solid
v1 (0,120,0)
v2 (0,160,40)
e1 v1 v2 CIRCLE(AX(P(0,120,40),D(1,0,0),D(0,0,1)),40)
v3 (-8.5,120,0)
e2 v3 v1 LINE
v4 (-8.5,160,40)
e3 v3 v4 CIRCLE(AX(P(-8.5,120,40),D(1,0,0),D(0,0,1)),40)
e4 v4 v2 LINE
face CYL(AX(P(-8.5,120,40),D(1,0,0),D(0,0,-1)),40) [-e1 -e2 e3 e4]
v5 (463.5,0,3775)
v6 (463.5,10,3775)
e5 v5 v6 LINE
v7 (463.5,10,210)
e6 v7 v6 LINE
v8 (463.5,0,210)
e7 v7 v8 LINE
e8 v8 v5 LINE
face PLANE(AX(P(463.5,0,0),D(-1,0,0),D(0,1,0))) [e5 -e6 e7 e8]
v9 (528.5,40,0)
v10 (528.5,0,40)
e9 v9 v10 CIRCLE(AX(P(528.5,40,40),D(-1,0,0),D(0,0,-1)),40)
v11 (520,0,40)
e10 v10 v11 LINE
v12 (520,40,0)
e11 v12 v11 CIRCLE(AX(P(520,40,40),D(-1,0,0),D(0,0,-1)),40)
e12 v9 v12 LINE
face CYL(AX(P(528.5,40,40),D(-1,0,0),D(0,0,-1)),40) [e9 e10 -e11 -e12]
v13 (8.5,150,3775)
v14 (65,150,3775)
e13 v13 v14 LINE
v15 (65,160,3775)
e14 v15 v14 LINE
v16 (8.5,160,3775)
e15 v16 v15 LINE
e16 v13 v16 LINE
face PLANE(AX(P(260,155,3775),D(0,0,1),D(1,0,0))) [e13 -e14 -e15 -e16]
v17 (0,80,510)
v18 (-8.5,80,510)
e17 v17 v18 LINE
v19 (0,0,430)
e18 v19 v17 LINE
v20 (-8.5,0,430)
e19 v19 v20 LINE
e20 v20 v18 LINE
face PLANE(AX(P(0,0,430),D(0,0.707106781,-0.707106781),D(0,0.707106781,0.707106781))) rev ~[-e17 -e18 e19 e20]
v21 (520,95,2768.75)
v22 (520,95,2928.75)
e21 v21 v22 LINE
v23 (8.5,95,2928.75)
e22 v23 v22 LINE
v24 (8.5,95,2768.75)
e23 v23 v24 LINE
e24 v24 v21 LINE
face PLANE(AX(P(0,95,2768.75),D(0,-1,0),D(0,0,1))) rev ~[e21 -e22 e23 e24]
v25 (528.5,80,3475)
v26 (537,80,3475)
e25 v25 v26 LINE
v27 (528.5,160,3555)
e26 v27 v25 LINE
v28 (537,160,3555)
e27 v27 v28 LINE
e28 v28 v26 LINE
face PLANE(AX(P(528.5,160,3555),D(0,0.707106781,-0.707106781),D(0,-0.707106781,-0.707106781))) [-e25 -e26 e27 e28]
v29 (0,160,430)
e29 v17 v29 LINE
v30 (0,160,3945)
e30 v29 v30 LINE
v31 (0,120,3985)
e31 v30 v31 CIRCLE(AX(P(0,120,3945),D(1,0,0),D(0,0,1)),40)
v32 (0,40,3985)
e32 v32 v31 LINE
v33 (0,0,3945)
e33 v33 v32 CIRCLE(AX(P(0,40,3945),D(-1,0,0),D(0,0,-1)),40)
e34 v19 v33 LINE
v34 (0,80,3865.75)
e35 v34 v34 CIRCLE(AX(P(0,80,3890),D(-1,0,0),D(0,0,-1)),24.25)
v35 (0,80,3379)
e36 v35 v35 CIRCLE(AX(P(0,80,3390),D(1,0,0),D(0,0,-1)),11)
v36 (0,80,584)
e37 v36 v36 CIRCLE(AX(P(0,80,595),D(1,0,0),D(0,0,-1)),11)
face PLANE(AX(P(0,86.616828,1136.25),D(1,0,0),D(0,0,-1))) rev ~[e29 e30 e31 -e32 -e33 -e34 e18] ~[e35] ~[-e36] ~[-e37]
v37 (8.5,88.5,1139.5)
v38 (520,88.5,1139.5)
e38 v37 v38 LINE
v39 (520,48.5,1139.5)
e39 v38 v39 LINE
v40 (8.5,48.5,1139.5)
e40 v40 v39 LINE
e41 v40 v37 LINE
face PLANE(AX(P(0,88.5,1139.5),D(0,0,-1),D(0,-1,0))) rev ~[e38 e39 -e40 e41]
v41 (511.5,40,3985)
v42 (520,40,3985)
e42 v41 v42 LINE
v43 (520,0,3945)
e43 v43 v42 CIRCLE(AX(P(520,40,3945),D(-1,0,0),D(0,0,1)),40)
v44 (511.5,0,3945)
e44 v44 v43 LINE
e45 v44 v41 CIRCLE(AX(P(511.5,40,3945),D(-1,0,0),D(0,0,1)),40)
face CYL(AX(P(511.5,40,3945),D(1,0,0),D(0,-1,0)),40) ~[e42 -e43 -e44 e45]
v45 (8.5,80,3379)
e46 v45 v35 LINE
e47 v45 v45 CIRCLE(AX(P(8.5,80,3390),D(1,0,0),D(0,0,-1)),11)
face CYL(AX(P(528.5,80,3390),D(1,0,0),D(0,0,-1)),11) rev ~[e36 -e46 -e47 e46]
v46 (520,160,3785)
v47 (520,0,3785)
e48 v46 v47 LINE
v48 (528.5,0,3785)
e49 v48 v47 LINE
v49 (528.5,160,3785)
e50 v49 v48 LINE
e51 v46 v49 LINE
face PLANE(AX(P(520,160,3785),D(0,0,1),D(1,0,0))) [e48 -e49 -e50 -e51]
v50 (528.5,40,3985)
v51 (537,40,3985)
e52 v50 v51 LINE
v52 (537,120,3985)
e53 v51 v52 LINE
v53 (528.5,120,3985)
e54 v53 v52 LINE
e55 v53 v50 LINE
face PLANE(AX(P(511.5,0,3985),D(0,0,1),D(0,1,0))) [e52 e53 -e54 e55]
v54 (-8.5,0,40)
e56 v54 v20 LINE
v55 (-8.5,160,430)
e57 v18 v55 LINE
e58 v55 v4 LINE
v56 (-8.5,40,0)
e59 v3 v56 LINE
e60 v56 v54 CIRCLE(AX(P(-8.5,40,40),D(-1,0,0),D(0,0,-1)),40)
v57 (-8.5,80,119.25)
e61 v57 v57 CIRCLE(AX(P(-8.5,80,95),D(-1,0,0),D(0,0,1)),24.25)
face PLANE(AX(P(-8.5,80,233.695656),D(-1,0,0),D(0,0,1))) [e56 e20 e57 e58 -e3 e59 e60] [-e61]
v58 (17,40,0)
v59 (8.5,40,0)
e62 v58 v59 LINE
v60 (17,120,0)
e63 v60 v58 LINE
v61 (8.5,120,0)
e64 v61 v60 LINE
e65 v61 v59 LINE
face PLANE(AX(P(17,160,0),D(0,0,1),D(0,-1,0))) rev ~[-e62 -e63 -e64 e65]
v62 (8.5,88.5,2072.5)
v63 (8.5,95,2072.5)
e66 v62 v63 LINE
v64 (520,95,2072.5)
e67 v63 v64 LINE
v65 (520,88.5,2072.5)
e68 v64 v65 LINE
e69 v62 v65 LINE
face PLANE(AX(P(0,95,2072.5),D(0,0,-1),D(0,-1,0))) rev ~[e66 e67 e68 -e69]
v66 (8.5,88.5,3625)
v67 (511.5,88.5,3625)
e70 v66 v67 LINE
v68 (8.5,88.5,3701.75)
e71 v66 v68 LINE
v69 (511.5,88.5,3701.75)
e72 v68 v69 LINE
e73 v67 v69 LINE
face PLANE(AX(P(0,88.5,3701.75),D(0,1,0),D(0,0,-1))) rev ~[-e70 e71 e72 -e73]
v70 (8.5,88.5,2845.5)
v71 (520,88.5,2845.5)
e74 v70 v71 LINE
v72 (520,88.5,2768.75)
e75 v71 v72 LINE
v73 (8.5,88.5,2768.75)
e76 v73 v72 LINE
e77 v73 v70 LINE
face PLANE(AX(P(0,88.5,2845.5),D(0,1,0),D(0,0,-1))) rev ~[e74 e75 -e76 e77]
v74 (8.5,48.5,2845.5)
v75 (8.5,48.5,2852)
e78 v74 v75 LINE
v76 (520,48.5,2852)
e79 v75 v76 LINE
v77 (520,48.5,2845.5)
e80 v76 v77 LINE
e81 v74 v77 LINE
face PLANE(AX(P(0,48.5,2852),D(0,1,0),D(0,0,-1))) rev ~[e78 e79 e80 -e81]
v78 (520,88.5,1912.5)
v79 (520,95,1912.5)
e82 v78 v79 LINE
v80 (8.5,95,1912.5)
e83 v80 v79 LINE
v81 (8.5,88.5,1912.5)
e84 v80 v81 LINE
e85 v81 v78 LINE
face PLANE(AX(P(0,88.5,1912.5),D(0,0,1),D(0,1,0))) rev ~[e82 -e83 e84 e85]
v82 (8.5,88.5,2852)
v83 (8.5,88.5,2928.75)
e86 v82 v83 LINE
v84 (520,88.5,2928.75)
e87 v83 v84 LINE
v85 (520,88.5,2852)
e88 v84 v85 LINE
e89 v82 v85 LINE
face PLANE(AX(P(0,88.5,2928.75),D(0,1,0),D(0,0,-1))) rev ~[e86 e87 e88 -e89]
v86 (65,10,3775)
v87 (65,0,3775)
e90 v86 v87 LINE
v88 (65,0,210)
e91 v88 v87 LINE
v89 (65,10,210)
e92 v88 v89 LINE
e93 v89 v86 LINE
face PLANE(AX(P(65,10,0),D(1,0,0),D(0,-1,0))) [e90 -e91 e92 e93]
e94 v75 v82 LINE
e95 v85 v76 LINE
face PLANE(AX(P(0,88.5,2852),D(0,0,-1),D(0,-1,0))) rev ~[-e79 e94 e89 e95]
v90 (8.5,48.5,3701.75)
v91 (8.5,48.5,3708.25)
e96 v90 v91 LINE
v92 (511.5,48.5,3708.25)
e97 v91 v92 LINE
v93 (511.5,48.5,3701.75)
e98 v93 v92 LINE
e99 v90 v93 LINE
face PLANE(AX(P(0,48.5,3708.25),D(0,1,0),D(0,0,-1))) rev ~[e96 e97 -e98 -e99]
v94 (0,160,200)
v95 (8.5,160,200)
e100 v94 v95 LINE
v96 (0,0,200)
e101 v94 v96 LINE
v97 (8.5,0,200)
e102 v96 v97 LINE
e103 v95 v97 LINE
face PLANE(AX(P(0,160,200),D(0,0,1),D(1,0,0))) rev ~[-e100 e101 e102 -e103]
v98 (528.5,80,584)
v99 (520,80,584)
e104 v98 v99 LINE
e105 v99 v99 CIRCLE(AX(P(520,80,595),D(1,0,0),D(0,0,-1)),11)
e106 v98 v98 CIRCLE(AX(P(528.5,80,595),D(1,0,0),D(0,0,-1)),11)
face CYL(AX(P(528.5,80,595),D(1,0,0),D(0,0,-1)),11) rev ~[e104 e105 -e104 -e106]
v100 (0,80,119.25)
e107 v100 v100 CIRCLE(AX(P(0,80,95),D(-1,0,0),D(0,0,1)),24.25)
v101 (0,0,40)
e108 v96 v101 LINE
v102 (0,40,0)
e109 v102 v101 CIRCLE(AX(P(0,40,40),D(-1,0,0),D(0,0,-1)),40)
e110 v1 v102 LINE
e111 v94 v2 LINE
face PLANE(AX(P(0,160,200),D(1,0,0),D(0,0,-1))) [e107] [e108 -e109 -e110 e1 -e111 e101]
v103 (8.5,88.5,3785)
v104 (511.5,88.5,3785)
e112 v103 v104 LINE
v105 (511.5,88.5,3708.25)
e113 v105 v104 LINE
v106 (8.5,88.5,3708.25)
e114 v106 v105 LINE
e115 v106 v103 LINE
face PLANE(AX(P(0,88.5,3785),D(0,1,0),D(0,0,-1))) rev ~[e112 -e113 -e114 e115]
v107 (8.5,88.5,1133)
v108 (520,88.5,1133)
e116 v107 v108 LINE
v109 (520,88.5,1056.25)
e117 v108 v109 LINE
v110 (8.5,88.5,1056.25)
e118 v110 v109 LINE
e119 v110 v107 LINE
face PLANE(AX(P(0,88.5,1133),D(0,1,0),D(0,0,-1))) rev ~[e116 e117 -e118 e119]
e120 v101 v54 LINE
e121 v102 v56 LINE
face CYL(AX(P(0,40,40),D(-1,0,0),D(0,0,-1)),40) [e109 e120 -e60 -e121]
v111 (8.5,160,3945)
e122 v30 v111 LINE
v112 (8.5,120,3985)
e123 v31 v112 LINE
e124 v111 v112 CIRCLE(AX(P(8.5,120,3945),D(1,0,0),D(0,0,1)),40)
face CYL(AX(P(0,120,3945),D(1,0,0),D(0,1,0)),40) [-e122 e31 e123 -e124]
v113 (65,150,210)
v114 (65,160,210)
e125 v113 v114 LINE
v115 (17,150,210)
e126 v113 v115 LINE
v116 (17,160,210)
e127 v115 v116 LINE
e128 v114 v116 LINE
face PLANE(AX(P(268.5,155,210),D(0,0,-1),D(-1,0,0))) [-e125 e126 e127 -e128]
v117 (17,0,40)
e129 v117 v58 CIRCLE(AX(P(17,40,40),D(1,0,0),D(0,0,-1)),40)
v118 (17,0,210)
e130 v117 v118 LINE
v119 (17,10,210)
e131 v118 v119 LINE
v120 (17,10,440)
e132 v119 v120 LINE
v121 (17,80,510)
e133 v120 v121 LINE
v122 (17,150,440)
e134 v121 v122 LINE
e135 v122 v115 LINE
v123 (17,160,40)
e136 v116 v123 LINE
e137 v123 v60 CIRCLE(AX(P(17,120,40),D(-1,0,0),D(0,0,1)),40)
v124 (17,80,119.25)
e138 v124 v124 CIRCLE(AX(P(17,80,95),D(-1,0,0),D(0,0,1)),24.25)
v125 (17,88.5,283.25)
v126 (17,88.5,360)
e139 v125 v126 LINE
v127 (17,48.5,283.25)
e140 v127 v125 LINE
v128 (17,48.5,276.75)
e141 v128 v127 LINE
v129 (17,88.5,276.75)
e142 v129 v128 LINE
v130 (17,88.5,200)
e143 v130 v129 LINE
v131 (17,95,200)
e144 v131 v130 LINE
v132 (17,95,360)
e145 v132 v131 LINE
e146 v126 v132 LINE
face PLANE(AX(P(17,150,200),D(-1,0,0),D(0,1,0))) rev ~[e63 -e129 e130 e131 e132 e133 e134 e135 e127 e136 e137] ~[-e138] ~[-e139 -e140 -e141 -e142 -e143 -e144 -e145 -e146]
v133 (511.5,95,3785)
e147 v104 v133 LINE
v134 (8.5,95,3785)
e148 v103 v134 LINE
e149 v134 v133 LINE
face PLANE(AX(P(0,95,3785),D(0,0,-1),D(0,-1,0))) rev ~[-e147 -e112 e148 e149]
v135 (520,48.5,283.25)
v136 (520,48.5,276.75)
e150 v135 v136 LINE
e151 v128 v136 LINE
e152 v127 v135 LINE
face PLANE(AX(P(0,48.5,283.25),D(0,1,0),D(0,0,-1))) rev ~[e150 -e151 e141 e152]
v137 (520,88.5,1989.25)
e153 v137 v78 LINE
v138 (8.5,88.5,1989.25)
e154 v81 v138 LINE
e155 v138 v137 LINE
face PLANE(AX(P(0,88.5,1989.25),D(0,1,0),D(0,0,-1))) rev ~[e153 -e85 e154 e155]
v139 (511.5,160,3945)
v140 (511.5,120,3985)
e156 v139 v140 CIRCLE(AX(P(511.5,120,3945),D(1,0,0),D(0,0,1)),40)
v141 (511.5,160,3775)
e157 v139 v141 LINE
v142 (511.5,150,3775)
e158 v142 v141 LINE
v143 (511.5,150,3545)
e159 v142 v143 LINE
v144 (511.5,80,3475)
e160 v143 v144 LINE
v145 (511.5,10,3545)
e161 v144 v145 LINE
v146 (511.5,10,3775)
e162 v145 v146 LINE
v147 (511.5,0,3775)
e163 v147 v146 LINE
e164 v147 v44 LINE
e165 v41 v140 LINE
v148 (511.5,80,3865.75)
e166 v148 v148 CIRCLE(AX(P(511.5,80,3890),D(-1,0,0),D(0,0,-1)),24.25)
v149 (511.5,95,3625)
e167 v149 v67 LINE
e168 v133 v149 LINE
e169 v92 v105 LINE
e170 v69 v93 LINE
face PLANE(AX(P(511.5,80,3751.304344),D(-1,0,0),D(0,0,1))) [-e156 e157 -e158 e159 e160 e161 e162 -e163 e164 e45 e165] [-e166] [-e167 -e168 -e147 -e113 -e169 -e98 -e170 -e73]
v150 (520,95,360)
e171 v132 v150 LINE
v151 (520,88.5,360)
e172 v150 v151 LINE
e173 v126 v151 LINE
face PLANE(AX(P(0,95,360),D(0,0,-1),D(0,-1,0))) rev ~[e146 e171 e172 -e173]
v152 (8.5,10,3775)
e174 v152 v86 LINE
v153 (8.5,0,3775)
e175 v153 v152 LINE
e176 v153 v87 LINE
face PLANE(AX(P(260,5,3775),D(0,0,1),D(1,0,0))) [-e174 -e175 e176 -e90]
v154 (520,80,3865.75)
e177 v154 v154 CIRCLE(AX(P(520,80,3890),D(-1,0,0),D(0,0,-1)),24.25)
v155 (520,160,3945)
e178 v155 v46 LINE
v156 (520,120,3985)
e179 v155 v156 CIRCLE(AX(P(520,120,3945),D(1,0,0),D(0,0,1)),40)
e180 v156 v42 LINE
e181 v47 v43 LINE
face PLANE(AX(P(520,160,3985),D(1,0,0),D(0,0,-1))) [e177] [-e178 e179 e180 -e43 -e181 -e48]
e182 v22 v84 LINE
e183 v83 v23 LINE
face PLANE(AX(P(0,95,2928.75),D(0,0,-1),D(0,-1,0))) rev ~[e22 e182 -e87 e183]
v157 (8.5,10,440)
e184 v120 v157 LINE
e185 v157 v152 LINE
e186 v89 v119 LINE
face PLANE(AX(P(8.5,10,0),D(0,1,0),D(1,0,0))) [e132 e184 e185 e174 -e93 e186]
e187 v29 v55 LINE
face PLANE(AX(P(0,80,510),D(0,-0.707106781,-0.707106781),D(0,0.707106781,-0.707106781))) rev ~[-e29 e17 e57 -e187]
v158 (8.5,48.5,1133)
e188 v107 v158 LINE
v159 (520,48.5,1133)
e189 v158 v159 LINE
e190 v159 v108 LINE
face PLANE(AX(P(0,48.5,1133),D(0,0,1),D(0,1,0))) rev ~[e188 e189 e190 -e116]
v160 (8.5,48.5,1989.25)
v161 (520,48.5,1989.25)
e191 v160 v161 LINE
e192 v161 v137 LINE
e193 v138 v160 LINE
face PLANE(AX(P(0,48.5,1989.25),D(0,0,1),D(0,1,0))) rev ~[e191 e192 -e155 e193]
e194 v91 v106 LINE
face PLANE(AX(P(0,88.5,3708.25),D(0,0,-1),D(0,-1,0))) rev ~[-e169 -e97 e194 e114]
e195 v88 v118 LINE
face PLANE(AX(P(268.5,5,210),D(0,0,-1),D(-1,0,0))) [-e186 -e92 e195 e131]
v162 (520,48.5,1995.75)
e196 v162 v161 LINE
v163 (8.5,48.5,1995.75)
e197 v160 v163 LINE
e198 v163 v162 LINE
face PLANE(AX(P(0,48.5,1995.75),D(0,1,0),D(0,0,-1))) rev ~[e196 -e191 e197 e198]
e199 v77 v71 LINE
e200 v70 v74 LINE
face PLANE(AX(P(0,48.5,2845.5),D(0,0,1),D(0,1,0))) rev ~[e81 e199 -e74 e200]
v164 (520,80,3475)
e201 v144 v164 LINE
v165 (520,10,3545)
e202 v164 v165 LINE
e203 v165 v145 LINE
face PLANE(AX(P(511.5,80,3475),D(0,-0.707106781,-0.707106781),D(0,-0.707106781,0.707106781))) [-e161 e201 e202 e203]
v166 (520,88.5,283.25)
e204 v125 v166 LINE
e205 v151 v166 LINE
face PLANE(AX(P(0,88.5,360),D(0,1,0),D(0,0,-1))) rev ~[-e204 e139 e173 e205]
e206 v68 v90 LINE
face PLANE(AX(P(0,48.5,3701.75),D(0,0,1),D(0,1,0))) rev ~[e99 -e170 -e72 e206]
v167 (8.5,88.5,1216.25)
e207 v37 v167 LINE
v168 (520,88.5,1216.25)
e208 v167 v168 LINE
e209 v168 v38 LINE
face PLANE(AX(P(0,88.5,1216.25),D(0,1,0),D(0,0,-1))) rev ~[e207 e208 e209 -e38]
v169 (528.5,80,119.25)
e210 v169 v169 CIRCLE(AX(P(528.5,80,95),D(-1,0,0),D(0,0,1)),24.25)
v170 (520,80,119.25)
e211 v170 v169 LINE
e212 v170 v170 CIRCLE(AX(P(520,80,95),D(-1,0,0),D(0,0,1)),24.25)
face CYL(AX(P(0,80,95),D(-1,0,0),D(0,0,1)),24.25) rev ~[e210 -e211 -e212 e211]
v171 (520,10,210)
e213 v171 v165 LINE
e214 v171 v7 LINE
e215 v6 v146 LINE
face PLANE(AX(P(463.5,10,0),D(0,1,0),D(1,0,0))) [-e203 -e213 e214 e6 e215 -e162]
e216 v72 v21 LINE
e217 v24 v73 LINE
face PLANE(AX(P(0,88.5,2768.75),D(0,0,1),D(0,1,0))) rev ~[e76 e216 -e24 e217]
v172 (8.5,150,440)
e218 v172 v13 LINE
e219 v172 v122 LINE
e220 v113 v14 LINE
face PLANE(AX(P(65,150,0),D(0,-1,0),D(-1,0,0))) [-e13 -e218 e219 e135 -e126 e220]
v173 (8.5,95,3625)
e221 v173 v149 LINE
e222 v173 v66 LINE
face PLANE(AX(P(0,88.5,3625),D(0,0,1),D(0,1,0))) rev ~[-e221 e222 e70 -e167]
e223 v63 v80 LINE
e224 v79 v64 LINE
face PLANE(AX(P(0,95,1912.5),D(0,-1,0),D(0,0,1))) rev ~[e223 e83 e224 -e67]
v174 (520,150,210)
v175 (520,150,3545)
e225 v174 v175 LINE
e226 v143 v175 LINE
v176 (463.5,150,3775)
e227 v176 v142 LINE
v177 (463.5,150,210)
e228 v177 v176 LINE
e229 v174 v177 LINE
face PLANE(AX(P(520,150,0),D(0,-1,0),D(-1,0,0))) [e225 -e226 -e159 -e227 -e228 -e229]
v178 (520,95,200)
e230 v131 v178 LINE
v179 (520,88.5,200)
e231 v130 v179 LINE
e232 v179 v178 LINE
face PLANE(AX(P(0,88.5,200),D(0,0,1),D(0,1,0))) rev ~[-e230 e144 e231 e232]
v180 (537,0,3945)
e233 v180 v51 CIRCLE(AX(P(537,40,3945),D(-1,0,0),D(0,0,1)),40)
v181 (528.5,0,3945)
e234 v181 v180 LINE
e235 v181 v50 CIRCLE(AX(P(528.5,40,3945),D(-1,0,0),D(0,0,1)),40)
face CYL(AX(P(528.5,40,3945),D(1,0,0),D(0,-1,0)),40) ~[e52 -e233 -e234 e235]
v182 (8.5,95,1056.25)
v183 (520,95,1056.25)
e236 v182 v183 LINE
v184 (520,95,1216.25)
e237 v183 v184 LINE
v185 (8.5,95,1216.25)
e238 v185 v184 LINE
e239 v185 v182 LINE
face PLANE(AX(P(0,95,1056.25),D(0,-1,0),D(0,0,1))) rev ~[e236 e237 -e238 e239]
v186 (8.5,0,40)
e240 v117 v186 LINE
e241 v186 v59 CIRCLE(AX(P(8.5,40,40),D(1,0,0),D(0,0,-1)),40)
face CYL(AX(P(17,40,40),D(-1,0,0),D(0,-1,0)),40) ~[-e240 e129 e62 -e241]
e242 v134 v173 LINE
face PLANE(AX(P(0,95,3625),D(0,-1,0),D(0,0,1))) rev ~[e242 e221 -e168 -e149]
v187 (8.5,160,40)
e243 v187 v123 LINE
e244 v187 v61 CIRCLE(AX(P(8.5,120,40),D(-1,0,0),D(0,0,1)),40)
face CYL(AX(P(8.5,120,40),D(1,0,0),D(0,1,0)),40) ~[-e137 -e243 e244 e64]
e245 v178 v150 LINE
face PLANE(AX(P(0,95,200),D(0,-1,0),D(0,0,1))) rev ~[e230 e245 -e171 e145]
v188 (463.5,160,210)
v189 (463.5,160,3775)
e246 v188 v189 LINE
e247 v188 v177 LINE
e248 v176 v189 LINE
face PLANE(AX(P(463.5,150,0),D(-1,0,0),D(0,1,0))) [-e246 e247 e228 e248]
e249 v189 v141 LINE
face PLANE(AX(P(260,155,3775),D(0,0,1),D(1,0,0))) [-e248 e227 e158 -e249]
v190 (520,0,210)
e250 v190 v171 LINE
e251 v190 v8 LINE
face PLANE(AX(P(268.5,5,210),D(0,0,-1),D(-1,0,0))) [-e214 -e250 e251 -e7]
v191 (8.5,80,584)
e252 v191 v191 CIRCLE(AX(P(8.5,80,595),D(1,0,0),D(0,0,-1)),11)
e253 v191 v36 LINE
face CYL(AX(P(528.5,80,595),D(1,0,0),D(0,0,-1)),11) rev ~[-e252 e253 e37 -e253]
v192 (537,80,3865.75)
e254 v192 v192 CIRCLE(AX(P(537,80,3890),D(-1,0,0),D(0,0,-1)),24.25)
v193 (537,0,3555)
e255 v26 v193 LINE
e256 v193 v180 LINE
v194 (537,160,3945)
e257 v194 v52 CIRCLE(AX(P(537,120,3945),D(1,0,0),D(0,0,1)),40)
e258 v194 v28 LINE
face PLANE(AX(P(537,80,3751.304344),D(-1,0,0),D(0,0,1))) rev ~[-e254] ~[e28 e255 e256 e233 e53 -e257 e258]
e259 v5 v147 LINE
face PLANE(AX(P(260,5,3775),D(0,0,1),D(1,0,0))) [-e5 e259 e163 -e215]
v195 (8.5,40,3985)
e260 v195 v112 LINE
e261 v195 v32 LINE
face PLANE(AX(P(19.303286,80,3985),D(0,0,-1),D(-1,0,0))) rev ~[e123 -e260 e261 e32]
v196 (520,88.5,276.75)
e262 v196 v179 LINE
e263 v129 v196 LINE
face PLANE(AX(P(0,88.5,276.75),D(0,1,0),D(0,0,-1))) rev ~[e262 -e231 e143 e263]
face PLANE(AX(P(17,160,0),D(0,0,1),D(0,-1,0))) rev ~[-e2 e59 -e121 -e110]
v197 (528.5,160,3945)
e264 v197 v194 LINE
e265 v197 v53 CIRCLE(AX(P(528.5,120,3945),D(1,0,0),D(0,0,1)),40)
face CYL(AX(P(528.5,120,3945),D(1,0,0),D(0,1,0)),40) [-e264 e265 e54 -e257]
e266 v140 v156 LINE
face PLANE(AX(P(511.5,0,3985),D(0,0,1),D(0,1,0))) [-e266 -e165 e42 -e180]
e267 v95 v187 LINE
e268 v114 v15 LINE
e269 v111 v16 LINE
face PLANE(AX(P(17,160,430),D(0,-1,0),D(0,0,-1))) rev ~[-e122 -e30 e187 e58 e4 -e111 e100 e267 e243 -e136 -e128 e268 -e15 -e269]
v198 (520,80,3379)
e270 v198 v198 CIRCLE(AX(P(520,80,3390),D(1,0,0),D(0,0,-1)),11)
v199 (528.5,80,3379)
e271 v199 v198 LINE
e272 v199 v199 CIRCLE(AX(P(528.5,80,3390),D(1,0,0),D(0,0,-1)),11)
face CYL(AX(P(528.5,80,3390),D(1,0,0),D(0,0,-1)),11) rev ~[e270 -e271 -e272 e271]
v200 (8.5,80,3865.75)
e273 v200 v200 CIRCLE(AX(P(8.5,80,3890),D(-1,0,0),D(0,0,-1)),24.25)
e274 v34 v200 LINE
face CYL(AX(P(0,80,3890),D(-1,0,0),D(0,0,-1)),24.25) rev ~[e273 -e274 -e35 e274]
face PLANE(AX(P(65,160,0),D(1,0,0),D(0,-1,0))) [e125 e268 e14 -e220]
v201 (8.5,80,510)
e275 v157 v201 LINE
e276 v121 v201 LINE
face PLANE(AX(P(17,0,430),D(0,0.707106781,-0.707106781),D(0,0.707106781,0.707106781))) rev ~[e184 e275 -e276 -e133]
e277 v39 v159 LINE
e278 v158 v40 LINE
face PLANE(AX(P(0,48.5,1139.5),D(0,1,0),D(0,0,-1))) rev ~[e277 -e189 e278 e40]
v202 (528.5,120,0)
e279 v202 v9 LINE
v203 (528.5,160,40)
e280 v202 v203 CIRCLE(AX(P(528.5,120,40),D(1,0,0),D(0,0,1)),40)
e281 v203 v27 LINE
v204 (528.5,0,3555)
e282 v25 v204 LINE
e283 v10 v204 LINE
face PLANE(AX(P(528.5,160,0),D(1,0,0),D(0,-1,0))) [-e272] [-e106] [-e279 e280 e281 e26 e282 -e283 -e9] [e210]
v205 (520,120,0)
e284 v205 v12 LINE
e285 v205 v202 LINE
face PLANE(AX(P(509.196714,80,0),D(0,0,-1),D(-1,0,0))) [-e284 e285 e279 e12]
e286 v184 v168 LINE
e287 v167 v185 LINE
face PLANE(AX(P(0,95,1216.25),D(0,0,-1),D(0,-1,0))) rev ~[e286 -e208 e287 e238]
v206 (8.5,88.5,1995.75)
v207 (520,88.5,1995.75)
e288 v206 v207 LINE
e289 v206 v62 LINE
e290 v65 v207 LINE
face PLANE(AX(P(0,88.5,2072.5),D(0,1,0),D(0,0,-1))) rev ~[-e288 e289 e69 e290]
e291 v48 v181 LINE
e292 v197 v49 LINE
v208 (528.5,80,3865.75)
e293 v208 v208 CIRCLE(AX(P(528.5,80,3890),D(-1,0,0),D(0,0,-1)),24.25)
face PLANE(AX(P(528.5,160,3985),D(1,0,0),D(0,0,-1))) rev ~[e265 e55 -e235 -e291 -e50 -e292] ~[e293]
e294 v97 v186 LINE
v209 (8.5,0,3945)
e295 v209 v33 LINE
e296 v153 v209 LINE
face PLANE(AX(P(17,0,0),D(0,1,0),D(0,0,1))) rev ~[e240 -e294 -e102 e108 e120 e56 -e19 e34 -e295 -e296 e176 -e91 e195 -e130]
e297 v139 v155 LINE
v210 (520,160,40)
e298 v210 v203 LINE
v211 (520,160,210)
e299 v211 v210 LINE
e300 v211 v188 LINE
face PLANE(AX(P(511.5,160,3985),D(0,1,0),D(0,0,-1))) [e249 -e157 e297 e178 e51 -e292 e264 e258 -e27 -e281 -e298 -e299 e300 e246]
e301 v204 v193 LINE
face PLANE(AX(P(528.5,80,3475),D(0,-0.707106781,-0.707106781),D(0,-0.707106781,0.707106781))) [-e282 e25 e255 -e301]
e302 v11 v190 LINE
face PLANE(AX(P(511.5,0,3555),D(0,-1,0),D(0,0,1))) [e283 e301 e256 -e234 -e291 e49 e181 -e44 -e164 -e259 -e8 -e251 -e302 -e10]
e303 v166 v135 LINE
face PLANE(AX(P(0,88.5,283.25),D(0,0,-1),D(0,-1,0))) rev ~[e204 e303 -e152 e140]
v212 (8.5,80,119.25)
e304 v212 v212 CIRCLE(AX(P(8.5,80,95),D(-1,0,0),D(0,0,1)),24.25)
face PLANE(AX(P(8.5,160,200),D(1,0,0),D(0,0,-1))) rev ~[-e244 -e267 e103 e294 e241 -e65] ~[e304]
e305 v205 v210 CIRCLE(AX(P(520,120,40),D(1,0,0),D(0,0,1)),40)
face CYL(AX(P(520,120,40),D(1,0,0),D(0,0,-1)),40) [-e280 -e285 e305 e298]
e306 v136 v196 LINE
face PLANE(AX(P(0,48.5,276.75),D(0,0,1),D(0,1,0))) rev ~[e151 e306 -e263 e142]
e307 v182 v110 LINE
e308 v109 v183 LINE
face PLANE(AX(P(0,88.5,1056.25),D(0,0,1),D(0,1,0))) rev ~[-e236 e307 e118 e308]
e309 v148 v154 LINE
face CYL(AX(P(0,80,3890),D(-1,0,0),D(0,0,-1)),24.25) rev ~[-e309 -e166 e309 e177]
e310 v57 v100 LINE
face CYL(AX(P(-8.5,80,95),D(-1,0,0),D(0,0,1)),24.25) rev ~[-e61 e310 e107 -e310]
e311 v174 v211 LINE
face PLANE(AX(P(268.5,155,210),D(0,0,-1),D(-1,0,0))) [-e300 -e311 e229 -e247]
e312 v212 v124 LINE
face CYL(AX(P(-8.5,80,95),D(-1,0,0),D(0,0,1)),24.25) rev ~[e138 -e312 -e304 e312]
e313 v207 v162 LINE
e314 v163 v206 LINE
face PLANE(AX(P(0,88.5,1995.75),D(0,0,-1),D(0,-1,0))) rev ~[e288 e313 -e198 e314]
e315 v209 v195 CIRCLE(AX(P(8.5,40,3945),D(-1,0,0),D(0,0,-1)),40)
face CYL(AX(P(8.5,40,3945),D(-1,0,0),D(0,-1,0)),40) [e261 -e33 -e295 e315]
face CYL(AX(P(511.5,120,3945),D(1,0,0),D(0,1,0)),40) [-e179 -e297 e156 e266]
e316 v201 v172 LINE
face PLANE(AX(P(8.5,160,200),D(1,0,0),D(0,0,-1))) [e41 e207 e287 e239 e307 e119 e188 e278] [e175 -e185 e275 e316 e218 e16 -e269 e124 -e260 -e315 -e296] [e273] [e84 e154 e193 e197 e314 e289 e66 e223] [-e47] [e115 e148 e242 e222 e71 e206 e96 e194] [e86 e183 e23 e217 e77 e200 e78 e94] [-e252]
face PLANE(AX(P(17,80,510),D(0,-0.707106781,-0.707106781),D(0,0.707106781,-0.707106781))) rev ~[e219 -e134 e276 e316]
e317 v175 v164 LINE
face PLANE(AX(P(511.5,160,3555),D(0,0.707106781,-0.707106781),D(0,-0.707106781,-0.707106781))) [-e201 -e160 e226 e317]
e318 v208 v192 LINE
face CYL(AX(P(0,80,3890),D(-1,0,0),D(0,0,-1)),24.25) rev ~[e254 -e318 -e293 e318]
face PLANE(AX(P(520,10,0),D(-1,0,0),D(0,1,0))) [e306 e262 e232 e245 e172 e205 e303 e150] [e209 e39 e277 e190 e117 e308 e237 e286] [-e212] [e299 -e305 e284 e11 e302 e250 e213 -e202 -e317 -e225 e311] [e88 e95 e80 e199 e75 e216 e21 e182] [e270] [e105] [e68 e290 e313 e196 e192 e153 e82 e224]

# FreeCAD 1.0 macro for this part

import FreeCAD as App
import Part
import Sketcher
from FreeCAD import Vector


def edges_at(feature, points):
    """Names of the edges that pass closest to the given points."""
    edges = feature.Shape.Edges
    near = lambda p: min(range(len(edges)), key=lambda i: edges[i].distToShape(Part.Vertex(*p))[0])
    return sorted({f"Edge{near(p) + 1}" for p in points})

doc = App.newDocument("Part")
params = doc.addObject("Spreadsheet::Sheet", "Params")
for row, (alias, value) in enumerate([
    ("sketch1_width", "65 mm"),
    ("sketch1_height", "160 mm"),
    ("sketch1_height2", "10 mm"),
    ("sketch1_width2", "56.5 mm"),
    ("pad1_length", "3985 mm"),
    ("sketch2_width", "65 mm"),
    ("sketch2_height", "10 mm"),
    ("sketch2_height2", "140 mm"),
    ("sketch2_width2", "56.5 mm"),
    ("pad2_length", "3985 mm"),
    ("sketch3_width", "40 mm"),
    ("sketch3_height", "160 mm"),
    ("sketch3_width2", "6.5 mm"),
    ("pad3_length", "520 mm"),
    ("sketch4_height", "200 mm"),
    ("sketch4_width", "511.5 mm"),
    ("linearpattern_pitch", "856.25 mm"),
    ("sketch5_width", "160 mm"),
    ("sketch5_height", "430 mm"),
    ("pad4_length", "8.5 mm"),
    ("linearpattern2_pitch", "17 mm"),
    ("sketch6_height", "200 mm"),
    ("sketch6_width", "8.5 mm"),
    ("sketch7_diameter", "48.5 mm"),
    ("sketch8_width", "160 mm"),
    ("sketch8_height", "430 mm"),
    ("pad5_length", "8.5 mm"),
    ("linearpattern3_pitch", "17 mm"),
    ("sketch9_height", "200 mm"),
    ("sketch9_width", "8.5 mm"),
    ("sketch10_diameter", "48.5 mm"),
    ("fillet_radius", "40 mm"),
    ("sketch11_width", "503 mm"),
    ("sketch11_height", "10 mm"),
    ("pocket6_length", "10 mm"),
    ("sketch12_width", "503 mm"),
    ("sketch12_height", "10 mm"),
    ("pocket7_length", "10 mm"),
    ("sketch13_diameter", "22 mm"),
], start=1):
    params.set(f"A{row}", alias)
    params.set(f"B{row}", "=" + value)
    params.setAlias(f"B{row}", alias)

body = doc.addObject("PartDesign::Body", "Body")

# Sketch on XY plane
sketch1 = body.newObject("Sketcher::SketchObject", "Sketch")
sketch1.AttachmentSupport = (doc.getObject("XY_Plane"), [""])
sketch1.MapMode = "FlatFace"
sketch1.addGeometry([
    Part.LineSegment(Vector(0, 160, 0), Vector(0, 0, 0)),  # 0
    Part.LineSegment(Vector(0, 0, 0), Vector(65, 0, 0)),  # 1
    Part.LineSegment(Vector(65, 0, 0), Vector(65, 10, 0)),  # 2
    Part.LineSegment(Vector(65, 10, 0), Vector(8, 10, 0)),  # 3
    Part.LineSegment(Vector(8, 10, 0), Vector(8, 150, 0)),  # 4
    Part.LineSegment(Vector(8, 150, 0), Vector(65, 150, 0)),  # 5
    Part.LineSegment(Vector(65, 150, 0), Vector(65, 160, 0)),  # 6
    Part.LineSegment(Vector(65, 160, 0), Vector(0, 160, 0)),  # 7
], False)
sketch1.addConstraint([
    Sketcher.Constraint("Coincident", 0, 2, 1, 1),
    Sketcher.Constraint("Coincident", 1, 2, 2, 1),
    Sketcher.Constraint("Coincident", 2, 2, 3, 1),
    Sketcher.Constraint("Coincident", 3, 2, 4, 1),
    Sketcher.Constraint("Coincident", 4, 2, 5, 1),
    Sketcher.Constraint("Coincident", 5, 2, 6, 1),
    Sketcher.Constraint("Coincident", 6, 2, 7, 1),
    Sketcher.Constraint("Coincident", 7, 2, 0, 1),
    Sketcher.Constraint("Vertical", 0),
    Sketcher.Constraint("Horizontal", 1),
    Sketcher.Constraint("Vertical", 2),
    Sketcher.Constraint("Horizontal", 3),
    Sketcher.Constraint("Vertical", 4),
    Sketcher.Constraint("Horizontal", 5),
    Sketcher.Constraint("Vertical", 6),
    Sketcher.Constraint("Horizontal", 7),
    Sketcher.Constraint("Coincident", 0, 2, -1, 1),
    Sketcher.Constraint("Vertical", 2, 2, 5, 2),
    Sketcher.Constraint("Equal", 2, 6),
    Sketcher.Constraint("DistanceX", 1, 1, 1, 2, 65.0),
    Sketcher.Constraint("DistanceY", 0, 2, 0, 1, 160.0),
    Sketcher.Constraint("DistanceY", 2, 1, 2, 2, 10.0),
    Sketcher.Constraint("DistanceX", 3, 2, 3, 1, 56.5),
])
sketch1.setExpression("Constraints[19]", "Params.sketch1_width")
sketch1.setExpression("Constraints[20]", "Params.sketch1_height")
sketch1.setExpression("Constraints[21]", "Params.sketch1_height2")
sketch1.setExpression("Constraints[22]", "Params.sketch1_width2")
pad1 = body.newObject("PartDesign::Pad", "Pad")
pad1.Profile = sketch1
pad1.setExpression("Length", "Params.pad1_length")
body2 = doc.addObject("PartDesign::Body", "Body001")

# Sketch on XY plane
sketch2 = body2.newObject("Sketcher::SketchObject", "Sketch001")
sketch2.AttachmentSupport = (doc.getObject("XY_Plane001"), [""])
sketch2.MapMode = "FlatFace"
sketch2.addGeometry([
    Part.LineSegment(Vector(528, 160, 0), Vector(464, 160, 0)),  # 0
    Part.LineSegment(Vector(464, 160, 0), Vector(464, 150, 0)),  # 1
    Part.LineSegment(Vector(464, 150, 0), Vector(520, 150, 0)),  # 2
    Part.LineSegment(Vector(520, 150, 0), Vector(520, 10, 0)),  # 3
    Part.LineSegment(Vector(520, 10, 0), Vector(464, 10, 0)),  # 4
    Part.LineSegment(Vector(464, 10, 0), Vector(464, 0, 0)),  # 5
    Part.LineSegment(Vector(464, 0, 0), Vector(528, 0, 0)),  # 6
    Part.LineSegment(Vector(528, 0, 0), Vector(528, 160, 0)),  # 7
], False)
sketch2.addConstraint([
    Sketcher.Constraint("Coincident", 0, 2, 1, 1),
    Sketcher.Constraint("Coincident", 1, 2, 2, 1),
    Sketcher.Constraint("Coincident", 2, 2, 3, 1),
    Sketcher.Constraint("Coincident", 3, 2, 4, 1),
    Sketcher.Constraint("Coincident", 4, 2, 5, 1),
    Sketcher.Constraint("Coincident", 5, 2, 6, 1),
    Sketcher.Constraint("Coincident", 6, 2, 7, 1),
    Sketcher.Constraint("Coincident", 7, 2, 0, 1),
    Sketcher.Constraint("Horizontal", 0),
    Sketcher.Constraint("Vertical", 1),
    Sketcher.Constraint("Horizontal", 2),
    Sketcher.Constraint("Vertical", 3),
    Sketcher.Constraint("Horizontal", 4),
    Sketcher.Constraint("Vertical", 5),
    Sketcher.Constraint("Horizontal", 6),
    Sketcher.Constraint("Vertical", 7),
    Sketcher.Constraint("PointOnObject", 5, 2, -1),
    Sketcher.Constraint("Vertical", 1, 2, 4, 2),
    Sketcher.Constraint("Equal", 1, 5),
    Sketcher.Constraint("DistanceX", 0, 2, 0, 1, 65.0),
    Sketcher.Constraint("DistanceY", 1, 2, 1, 1, 10.0),
    Sketcher.Constraint("DistanceY", 3, 2, 3, 1, 140.0),
    Sketcher.Constraint("DistanceX", 2, 1, 2, 2, 56.5),
    Sketcher.Constraint("DistanceX", -1, 1, 2, 2, 520.0),
])
sketch2.setExpression("Constraints[19]", "Params.sketch2_width")
sketch2.setExpression("Constraints[20]", "Params.sketch2_height")
sketch2.setExpression("Constraints[21]", "Params.sketch2_height2")
sketch2.setExpression("Constraints[22]", "Params.sketch2_width2")
pad2 = body2.newObject("PartDesign::Pad", "Pad001")
pad2.Profile = sketch2
pad2.setExpression("Length", "Params.pad2_length")
body.AllowCompound = True
doc.recompute()

boolean = body.newObject("PartDesign::Boolean", "Boolean")
boolean.Type = "Fuse"
boolean.addObjects([body2])

# Sketch on YZ plane
sketch3 = body.newObject("Sketcher::SketchObject", "Sketch002")
sketch3.AttachmentSupport = (doc.getObject("YZ_Plane"), [""])
sketch3.MapMode = "FlatFace"
sketch3.addGeometry([
    Part.LineSegment(Vector(95, 360, 0), Vector(95, 200, 0)),  # 0
    Part.LineSegment(Vector(95, 200, 0), Vector(88, 200, 0)),  # 1
    Part.LineSegment(Vector(88, 200, 0), Vector(88, 277, 0)),  # 2
    Part.LineSegment(Vector(88, 277, 0), Vector(48, 277, 0)),  # 3
    Part.LineSegment(Vector(48, 277, 0), Vector(48, 283, 0)),  # 4
    Part.LineSegment(Vector(48, 283, 0), Vector(88, 283, 0)),  # 5
    Part.LineSegment(Vector(88, 283, 0), Vector(88, 360, 0)),  # 6
    Part.LineSegment(Vector(88, 360, 0), Vector(95, 360, 0)),  # 7
], False)
sketch3.addConstraint([
    Sketcher.Constraint("Coincident", 0, 2, 1, 1),
    Sketcher.Constraint("Coincident", 1, 2, 2, 1),
    Sketcher.Constraint("Coincident", 2, 2, 3, 1),
    Sketcher.Constraint("Coincident", 3, 2, 4, 1),
    Sketcher.Constraint("Coincident", 4, 2, 5, 1),
    Sketcher.Constraint("Coincident", 5, 2, 6, 1),
    Sketcher.Constraint("Coincident", 6, 2, 7, 1),
    Sketcher.Constraint("Coincident", 7, 2, 0, 1),
    Sketcher.Constraint("Vertical", 0),
    Sketcher.Constraint("Horizontal", 1),
    Sketcher.Constraint("Vertical", 2),
    Sketcher.Constraint("Horizontal", 3),
    Sketcher.Constraint("Vertical", 4),
    Sketcher.Constraint("Horizontal", 5),
    Sketcher.Constraint("Vertical", 6),
    Sketcher.Constraint("Horizontal", 7),
    Sketcher.Constraint("Vertical", 2, 2, 5, 2),
    Sketcher.Constraint("Equal", 7, 4),
    Sketcher.Constraint("Equal", 2, 6),
    Sketcher.Constraint("DistanceX", 3, 2, 3, 1, 40.0),
    Sketcher.Constraint("DistanceY", 0, 2, 0, 1, 160.0),
    Sketcher.Constraint("DistanceX", 1, 2, 1, 1, 6.5),
    Sketcher.Constraint("DistanceX", -1, 1, 0, 2, 95.0),
    Sketcher.Constraint("DistanceY", -1, 1, 0, 2, 200.0),
])
sketch3.setExpression("Constraints[19]", "Params.sketch3_width")
sketch3.setExpression("Constraints[20]", "Params.sketch3_height")
sketch3.setExpression("Constraints[21]", "Params.sketch3_width2")
pad3 = body.newObject("PartDesign::Pad", "Pad002")
pad3.Profile = sketch3
pad3.setExpression("Length", "Params.pad3_length")

# Sketch on XZ plane
sketch4 = body.newObject("Sketcher::SketchObject", "Sketch003")
sketch4.AttachmentSupport = (doc.getObject("XZ_Plane"), [""])
sketch4.MapMode = "FlatFace"
sketch4.AttachmentOffset = App.Placement(Vector(0, 0, -160), App.Rotation())
sketch4.addGeometry([
    Part.LineSegment(Vector(8, 0, 0), Vector(8, 200, 0)),  # 0
    Part.LineSegment(Vector(8, 200, 0), Vector(520, 200, 0)),  # 1
    Part.LineSegment(Vector(520, 200, 0), Vector(520, 0, 0)),  # 2
    Part.LineSegment(Vector(520, 0, 0), Vector(8, 0, 0)),  # 3
    Part.LineSegment(Vector(8, 3785, 0), Vector(8, 3985, 0)),  # 4
    Part.LineSegment(Vector(8, 3985, 0), Vector(520, 3985, 0)),  # 5
    Part.LineSegment(Vector(520, 3985, 0), Vector(520, 3785, 0)),  # 6
    Part.LineSegment(Vector(520, 3785, 0), Vector(8, 3785, 0)),  # 7
], False)
sketch4.addConstraint([
    Sketcher.Constraint("Coincident", 0, 2, 1, 1),
    Sketcher.Constraint("Coincident", 1, 2, 2, 1),
    Sketcher.Constraint("Coincident", 2, 2, 3, 1),
    Sketcher.Constraint("Coincident", 3, 2, 0, 1),
    Sketcher.Constraint("Coincident", 4, 2, 5, 1),
    Sketcher.Constraint("Coincident", 5, 2, 6, 1),
    Sketcher.Constraint("Coincident", 6, 2, 7, 1),
    Sketcher.Constraint("Coincident", 7, 2, 4, 1),
    Sketcher.Constraint("Vertical", 0),
    Sketcher.Constraint("Horizontal", 1),
    Sketcher.Constraint("Vertical", 2),
    Sketcher.Constraint("Horizontal", 3),
    Sketcher.Constraint("Vertical", 4),
    Sketcher.Constraint("Horizontal", 5),
    Sketcher.Constraint("Vertical", 6),
    Sketcher.Constraint("Horizontal", 7),
    Sketcher.Constraint("PointOnObject", 2, 2, -1),
    Sketcher.Constraint("Vertical", 3, 2, 4, 2),
    Sketcher.Constraint("Vertical", 2, 2, 5, 2),
    Sketcher.Constraint("Equal", 2, 4),
    Sketcher.Constraint("DistanceY", 0, 1, 0, 2, 200.0),
    Sketcher.Constraint("DistanceX", 1, 1, 1, 2, 511.5),
    Sketcher.Constraint("DistanceX", -1, 1, 1, 2, 520.0),
    Sketcher.Constraint("DistanceY", -1, 1, 4, 2, 3985.0),
])
sketch4.setExpression("Constraints[20]", "Params.sketch4_height")
sketch4.setExpression("Constraints[21]", "Params.sketch4_width")
pocket1 = body.newObject("PartDesign::Pocket", "Pocket")
pocket1.Profile = sketch4
pocket1.Type = "ThroughAll"
pocket1.Reversed = True
doc.recompute()

linearpattern = body.newObject("PartDesign::LinearPattern", "LinearPattern")
linearpattern.Originals = [pad3]
linearpattern.Direction = (doc.getObject("Z_Axis"), [""])
linearpattern.Mode = "offset"
linearpattern.setExpression("Offset", "Params.linearpattern_pitch")
linearpattern.Occurrences = 5
body.Tip = linearpattern

# Sketch on YZ plane
sketch5 = body.newObject("Sketcher::SketchObject", "Sketch004")
sketch5.AttachmentSupport = (doc.getObject("YZ_Plane"), [""])
sketch5.MapMode = "FlatFace"
sketch5.AttachmentOffset = App.Placement(Vector(0, 0, 528.5), App.Rotation())
sketch5.addGeometry([
    Part.LineSegment(Vector(160, 3555, 0), Vector(160, 3985, 0)),  # 0
    Part.LineSegment(Vector(160, 3985, 0), Vector(0, 3985, 0)),  # 1
    Part.LineSegment(Vector(0, 3985, 0), Vector(0, 3555, 0)),  # 2
    Part.LineSegment(Vector(0, 3555, 0), Vector(80, 3475, 0)),  # 3
    Part.LineSegment(Vector(80, 3475, 0), Vector(160, 3555, 0)),  # 4
], False)
sketch5.addConstraint([
    Sketcher.Constraint("Coincident", 0, 2, 1, 1),
    Sketcher.Constraint("Coincident", 1, 2, 2, 1),
    Sketcher.Constraint("Coincident", 2, 2, 3, 1),
    Sketcher.Constraint("Coincident", 3, 2, 4, 1),
    Sketcher.Constraint("Coincident", 4, 2, 0, 1),
    Sketcher.Constraint("Vertical", 0),
    Sketcher.Constraint("Horizontal", 1),
    Sketcher.Constraint("Vertical", 2),
    Sketcher.Constraint("PointOnObject", 1, 2, -2),
    Sketcher.Constraint("Perpendicular", 3, 4),
    Sketcher.Constraint("Horizontal", 2, 2, 4, 2),
    Sketcher.Constraint("Equal", 3, 4),
    Sketcher.Constraint("DistanceX", 1, 2, 1, 1, 160.0),
    Sketcher.Constraint("DistanceY", 0, 1, 0, 2, 430.0),
    Sketcher.Constraint("DistanceY", -1, 1, 0, 2, 3985.0),
])
sketch5.setExpression("Constraints[12]", "Params.sketch5_width")
sketch5.setExpression("Constraints[13]", "Params.sketch5_height")
pad4 = body.newObject("PartDesign::Pad", "Pad003")
pad4.Profile = sketch5
pad4.setExpression("Length", "Params.pad4_length")
doc.recompute()

linearpattern2 = body.newObject("PartDesign::LinearPattern", "LinearPattern001")
linearpattern2.Originals = [pad4]
linearpattern2.Direction = (doc.getObject("X_Axis"), [""])
linearpattern2.Mode = "offset"
linearpattern2.setExpression("Offset", "Params.linearpattern2_pitch")
linearpattern2.Occurrences = 2
linearpattern2.Reversed = True
body.Tip = linearpattern2

# Sketch on XZ plane
sketch6 = body.newObject("Sketcher::SketchObject", "Sketch005")
sketch6.AttachmentSupport = (doc.getObject("XZ_Plane"), [""])
sketch6.MapMode = "FlatFace"
sketch6.AttachmentOffset = App.Placement(Vector(0, 0, -160), App.Rotation())
sketch6.addGeometry([
    Part.LineSegment(Vector(520, 3785, 0), Vector(520, 3985, 0)),
    Part.LineSegment(Vector(520, 3985, 0), Vector(528, 3985, 0)),
    Part.LineSegment(Vector(528, 3985, 0), Vector(528, 3785, 0)),
    Part.LineSegment(Vector(528, 3785, 0), Vector(520, 3785, 0)),
], False)
sketch6.addConstraint([
    Sketcher.Constraint("Coincident", 0, 2, 1, 1),
    Sketcher.Constraint("Coincident", 1, 2, 2, 1),
    Sketcher.Constraint("Coincident", 2, 2, 3, 1),
    Sketcher.Constraint("Coincident", 3, 2, 0, 1),
    Sketcher.Constraint("Vertical", 0),
    Sketcher.Constraint("Horizontal", 1),
    Sketcher.Constraint("Vertical", 2),
    Sketcher.Constraint("Horizontal", 3),
    Sketcher.Constraint("DistanceY", 0, 1, 0, 2, 200.0),
    Sketcher.Constraint("DistanceX", 1, 1, 1, 2, 8.5),
    Sketcher.Constraint("DistanceX", -1, 1, 0, 2, 520.0),
    Sketcher.Constraint("DistanceY", -1, 1, 0, 2, 3985.0),
])
sketch6.setExpression("Constraints[8]", "Params.sketch6_height")
sketch6.setExpression("Constraints[9]", "Params.sketch6_width")
pocket2 = body.newObject("PartDesign::Pocket", "Pocket001")
pocket2.Profile = sketch6
pocket2.Type = "ThroughAll"
pocket2.Reversed = True

# Sketch on YZ plane
sketch7 = body.newObject("Sketcher::SketchObject", "Sketch006")
sketch7.AttachmentSupport = (doc.getObject("YZ_Plane"), [""])
sketch7.MapMode = "FlatFace"
sketch7.addGeometry([
    Part.Circle(Vector(80, 95, 0), Vector(0, 0, 1), 24),
    Part.Circle(Vector(80, 3890, 0), Vector(0, 0, 1), 24),
], False)
sketch7.addConstraint([
    Sketcher.Constraint("Equal", 0, 1),
    Sketcher.Constraint("Vertical", 0, 3, 1, 3),
    Sketcher.Constraint("Diameter", 0, 48.5),
    Sketcher.Constraint("DistanceX", -1, 1, 0, 3, 80.0),
    Sketcher.Constraint("DistanceY", -1, 1, 0, 3, 95.0),
    Sketcher.Constraint("DistanceY", -1, 1, 1, 3, 3890.0),
])
sketch7.setExpression("Constraints[2]", "Params.sketch7_diameter")
pocket3 = body.newObject("PartDesign::Pocket", "Pocket002")
pocket3.Profile = sketch7
pocket3.Type = "ThroughAll"
pocket3.Reversed = True

# Sketch on YZ plane
sketch8 = body.newObject("Sketcher::SketchObject", "Sketch007")
sketch8.AttachmentSupport = (doc.getObject("YZ_Plane"), [""])
sketch8.MapMode = "FlatFace"
sketch8.addGeometry([
    Part.LineSegment(Vector(160, 0, 0), Vector(0, 0, 0)),  # 0
    Part.LineSegment(Vector(0, 0, 0), Vector(0, 430, 0)),  # 1
    Part.LineSegment(Vector(0, 430, 0), Vector(80, 510, 0)),  # 2
    Part.LineSegment(Vector(80, 510, 0), Vector(160, 430, 0)),  # 3
    Part.LineSegment(Vector(160, 430, 0), Vector(160, 0, 0)),  # 4
], False)
sketch8.addConstraint([
    Sketcher.Constraint("Coincident", 0, 2, 1, 1),
    Sketcher.Constraint("Coincident", 1, 2, 2, 1),
    Sketcher.Constraint("Coincident", 2, 2, 3, 1),
    Sketcher.Constraint("Coincident", 3, 2, 4, 1),
    Sketcher.Constraint("Coincident", 4, 2, 0, 1),
    Sketcher.Constraint("Horizontal", 0),
    Sketcher.Constraint("Vertical", 1),
    Sketcher.Constraint("Vertical", 4),
    Sketcher.Constraint("Coincident", 0, 2, -1, 1),
    Sketcher.Constraint("Perpendicular", 2, 3),
    Sketcher.Constraint("Horizontal", 1, 2, 3, 2),
    Sketcher.Constraint("Equal", 2, 3),
    Sketcher.Constraint("DistanceX", 0, 2, 0, 1, 160.0),
    Sketcher.Constraint("DistanceY", 1, 1, 1, 2, 430.0),
])
sketch8.setExpression("Constraints[12]", "Params.sketch8_width")
sketch8.setExpression("Constraints[13]", "Params.sketch8_height")
pad5 = body.newObject("PartDesign::Pad", "Pad004")
pad5.Profile = sketch8
pad5.setExpression("Length", "Params.pad5_length")
pad5.Reversed = True
doc.recompute()

linearpattern3 = body.newObject("PartDesign::LinearPattern", "LinearPattern002")
linearpattern3.Originals = [pad5]
linearpattern3.Direction = (doc.getObject("X_Axis"), [""])
linearpattern3.Mode = "offset"
linearpattern3.setExpression("Offset", "Params.linearpattern3_pitch")
linearpattern3.Occurrences = 2
body.Tip = linearpattern3

# Sketch on XZ plane
sketch9 = body.newObject("Sketcher::SketchObject", "Sketch008")
sketch9.AttachmentSupport = (doc.getObject("XZ_Plane"), [""])
sketch9.MapMode = "FlatFace"
sketch9.AttachmentOffset = App.Placement(Vector(0, 0, -160), App.Rotation())
sketch9.addGeometry([
    Part.LineSegment(Vector(0, 0, 0), Vector(0, 200, 0)),
    Part.LineSegment(Vector(0, 200, 0), Vector(8, 200, 0)),
    Part.LineSegment(Vector(8, 200, 0), Vector(8, 0, 0)),
    Part.LineSegment(Vector(8, 0, 0), Vector(0, 0, 0)),
], False)
sketch9.addConstraint([
    Sketcher.Constraint("Coincident", 0, 2, 1, 1),
    Sketcher.Constraint("Coincident", 1, 2, 2, 1),
    Sketcher.Constraint("Coincident", 2, 2, 3, 1),
    Sketcher.Constraint("Coincident", 3, 2, 0, 1),
    Sketcher.Constraint("Vertical", 0),
    Sketcher.Constraint("Horizontal", 1),
    Sketcher.Constraint("Vertical", 2),
    Sketcher.Constraint("Horizontal", 3),
    Sketcher.Constraint("Coincident", 3, 2, -1, 1),
    Sketcher.Constraint("DistanceY", 0, 1, 0, 2, 200.0),
    Sketcher.Constraint("DistanceX", 1, 1, 1, 2, 8.5),
])
sketch9.setExpression("Constraints[9]", "Params.sketch9_height")
sketch9.setExpression("Constraints[10]", "Params.sketch9_width")
pocket4 = body.newObject("PartDesign::Pocket", "Pocket003")
pocket4.Profile = sketch9
pocket4.Type = "ThroughAll"
pocket4.Reversed = True

# Sketch on YZ plane
sketch10 = body.newObject("Sketcher::SketchObject", "Sketch009")
sketch10.AttachmentSupport = (doc.getObject("YZ_Plane"), [""])
sketch10.MapMode = "FlatFace"
sketch10.AttachmentOffset = App.Placement(Vector(0, 0, -8.5), App.Rotation())
sketch10.addGeometry(Part.Circle(Vector(80, 95, 0), Vector(0, 0, 1), 24), False)
sketch10.addConstraint([
    Sketcher.Constraint("Diameter", 0, 48.5),
    Sketcher.Constraint("DistanceX", -1, 1, 0, 3, 80.0),
    Sketcher.Constraint("DistanceY", -1, 1, 0, 3, 95.0),
])
sketch10.setExpression("Constraints[0]", "Params.sketch10_diameter")
pocket5 = body.newObject("PartDesign::Pocket", "Pocket004")
pocket5.Profile = sketch10
pocket5.Type = "ThroughAll"
pocket5.Reversed = True
doc.recompute()

fillet = body.newObject("PartDesign::Fillet", "Fillet")
fillet.Base = (pocket5, edges_at(pocket5, [
    (-4.25, 0, 0),
    (515.75, 0, 3985),
    (4.25, 160, 3985),
    (515.75, 160, 3985),
    (532.75, 0, 3985),
    (4.25, 0, 3985),
    (-4.25, 160, 0),
    (12.75, 0, 0),
    (524.25, 160, 0),
    (532.75, 160, 3985),
    (524.25, 0, 0),
    (12.75, 160, 0),
]))
fillet.setExpression("Radius", "Params.fillet_radius")

# Sketch on XY plane
sketch11 = body.newObject("Sketcher::SketchObject", "Sketch010")
sketch11.AttachmentSupport = (doc.getObject("XY_Plane"), [""])
sketch11.MapMode = "FlatFace"
sketch11.AttachmentOffset = App.Placement(Vector(0, 0, 3785), App.Rotation())
sketch11.addGeometry([
    Part.LineSegment(Vector(8, 160, 0), Vector(8, 150, 0)),  # 0
    Part.LineSegment(Vector(8, 150, 0), Vector(512, 150, 0)),  # 1
    Part.LineSegment(Vector(512, 150, 0), Vector(512, 160, 0)),  # 2
    Part.LineSegment(Vector(512, 160, 0), Vector(8, 160, 0)),  # 3
    Part.LineSegment(Vector(8, 10, 0), Vector(8, 0, 0)),  # 4
    Part.LineSegment(Vector(8, 0, 0), Vector(512, 0, 0)),  # 5
    Part.LineSegment(Vector(512, 0, 0), Vector(512, 10, 0)),  # 6
    Part.LineSegment(Vector(512, 10, 0), Vector(8, 10, 0)),  # 7
], False)
sketch11.addConstraint([
    Sketcher.Constraint("Coincident", 0, 2, 1, 1),
    Sketcher.Constraint("Coincident", 1, 2, 2, 1),
    Sketcher.Constraint("Coincident", 2, 2, 3, 1),
    Sketcher.Constraint("Coincident", 3, 2, 0, 1),
    Sketcher.Constraint("Coincident", 4, 2, 5, 1),
    Sketcher.Constraint("Coincident", 5, 2, 6, 1),
    Sketcher.Constraint("Coincident", 6, 2, 7, 1),
    Sketcher.Constraint("Coincident", 7, 2, 4, 1),
    Sketcher.Constraint("Vertical", 0),
    Sketcher.Constraint("Horizontal", 1),
    Sketcher.Constraint("Vertical", 2),
    Sketcher.Constraint("Horizontal", 3),
    Sketcher.Constraint("Vertical", 4),
    Sketcher.Constraint("Horizontal", 5),
    Sketcher.Constraint("Vertical", 6),
    Sketcher.Constraint("Horizontal", 7),
    Sketcher.Constraint("PointOnObject", 4, 2, -1),
    Sketcher.Constraint("Vertical", 3, 2, 4, 2),
    Sketcher.Constraint("Vertical", 2, 2, 5, 2),
    Sketcher.Constraint("Equal", 2, 4),
    Sketcher.Constraint("DistanceX", 1, 1, 1, 2, 503.0),
    Sketcher.Constraint("DistanceY", 0, 2, 0, 1, 10.0),
    Sketcher.Constraint("DistanceY", -1, 1, 0, 2, 150.0),
    Sketcher.Constraint("DistanceX", -1, 1, 0, 2, 8.5),
])
sketch11.setExpression("Constraints[20]", "Params.sketch11_width")
sketch11.setExpression("Constraints[21]", "Params.sketch11_height")
pocket6 = body.newObject("PartDesign::Pocket", "Pocket005")
pocket6.Profile = sketch11
pocket6.setExpression("Length", "Params.pocket6_length")

# Sketch on XY plane
sketch12 = body.newObject("Sketcher::SketchObject", "Sketch011")
sketch12.AttachmentSupport = (doc.getObject("XY_Plane"), [""])
sketch12.MapMode = "FlatFace"
sketch12.AttachmentOffset = App.Placement(Vector(0, 0, 200), App.Rotation())
sketch12.addGeometry([
    Part.LineSegment(Vector(520, 160, 0), Vector(520, 150, 0)),  # 0
    Part.LineSegment(Vector(520, 150, 0), Vector(17, 150, 0)),  # 1
    Part.LineSegment(Vector(17, 150, 0), Vector(17, 160, 0)),  # 2
    Part.LineSegment(Vector(17, 160, 0), Vector(520, 160, 0)),  # 3
    Part.LineSegment(Vector(520, 10, 0), Vector(520, 0, 0)),  # 4
    Part.LineSegment(Vector(520, 0, 0), Vector(17, 0, 0)),  # 5
    Part.LineSegment(Vector(17, 0, 0), Vector(17, 10, 0)),  # 6
    Part.LineSegment(Vector(17, 10, 0), Vector(520, 10, 0)),  # 7
], False)
sketch12.addConstraint([
    Sketcher.Constraint("Coincident", 0, 2, 1, 1),
    Sketcher.Constraint("Coincident", 1, 2, 2, 1),
    Sketcher.Constraint("Coincident", 2, 2, 3, 1),
    Sketcher.Constraint("Coincident", 3, 2, 0, 1),
    Sketcher.Constraint("Coincident", 4, 2, 5, 1),
    Sketcher.Constraint("Coincident", 5, 2, 6, 1),
    Sketcher.Constraint("Coincident", 6, 2, 7, 1),
    Sketcher.Constraint("Coincident", 7, 2, 4, 1),
    Sketcher.Constraint("Vertical", 0),
    Sketcher.Constraint("Horizontal", 1),
    Sketcher.Constraint("Vertical", 2),
    Sketcher.Constraint("Horizontal", 3),
    Sketcher.Constraint("Vertical", 4),
    Sketcher.Constraint("Horizontal", 5),
    Sketcher.Constraint("Vertical", 6),
    Sketcher.Constraint("Horizontal", 7),
    Sketcher.Constraint("PointOnObject", 4, 2, -1),
    Sketcher.Constraint("Vertical", 3, 2, 4, 2),
    Sketcher.Constraint("Vertical", 2, 2, 5, 2),
    Sketcher.Constraint("Equal", 2, 4),
    Sketcher.Constraint("DistanceX", 1, 2, 1, 1, 503.0),
    Sketcher.Constraint("DistanceY", 0, 2, 0, 1, 10.0),
    Sketcher.Constraint("DistanceX", -1, 1, 0, 2, 520.0),
    Sketcher.Constraint("DistanceY", -1, 1, 0, 2, 150.0),
])
sketch12.setExpression("Constraints[20]", "Params.sketch12_width")
sketch12.setExpression("Constraints[21]", "Params.sketch12_height")
pocket7 = body.newObject("PartDesign::Pocket", "Pocket006")
pocket7.Profile = sketch12
pocket7.setExpression("Length", "Params.pocket7_length")
pocket7.Reversed = True

# Sketch on YZ plane
sketch13 = body.newObject("Sketcher::SketchObject", "Sketch012")
sketch13.AttachmentSupport = (doc.getObject("YZ_Plane"), [""])
sketch13.MapMode = "FlatFace"
sketch13.AttachmentOffset = App.Placement(Vector(0, 0, 528.5), App.Rotation())
sketch13.addGeometry([
    Part.Circle(Vector(80, 595, 0), Vector(0, 0, 1), 11),
    Part.Circle(Vector(80, 3390, 0), Vector(0, 0, 1), 11),
], False)
sketch13.addConstraint([
    Sketcher.Constraint("Equal", 0, 1),
    Sketcher.Constraint("Vertical", 0, 3, 1, 3),
    Sketcher.Constraint("Diameter", 0, 22.0),
    Sketcher.Constraint("DistanceX", -1, 1, 0, 3, 80.0),
    Sketcher.Constraint("DistanceY", -1, 1, 0, 3, 595.0),
    Sketcher.Constraint("DistanceY", -1, 1, 1, 3, 3390.0),
])
sketch13.setExpression("Constraints[2]", "Params.sketch13_diameter")
pocket8 = body.newObject("PartDesign::Pocket", "Pocket007")
pocket8.Profile = sketch13
pocket8.Type = "ThroughAll"

doc.recompute()
